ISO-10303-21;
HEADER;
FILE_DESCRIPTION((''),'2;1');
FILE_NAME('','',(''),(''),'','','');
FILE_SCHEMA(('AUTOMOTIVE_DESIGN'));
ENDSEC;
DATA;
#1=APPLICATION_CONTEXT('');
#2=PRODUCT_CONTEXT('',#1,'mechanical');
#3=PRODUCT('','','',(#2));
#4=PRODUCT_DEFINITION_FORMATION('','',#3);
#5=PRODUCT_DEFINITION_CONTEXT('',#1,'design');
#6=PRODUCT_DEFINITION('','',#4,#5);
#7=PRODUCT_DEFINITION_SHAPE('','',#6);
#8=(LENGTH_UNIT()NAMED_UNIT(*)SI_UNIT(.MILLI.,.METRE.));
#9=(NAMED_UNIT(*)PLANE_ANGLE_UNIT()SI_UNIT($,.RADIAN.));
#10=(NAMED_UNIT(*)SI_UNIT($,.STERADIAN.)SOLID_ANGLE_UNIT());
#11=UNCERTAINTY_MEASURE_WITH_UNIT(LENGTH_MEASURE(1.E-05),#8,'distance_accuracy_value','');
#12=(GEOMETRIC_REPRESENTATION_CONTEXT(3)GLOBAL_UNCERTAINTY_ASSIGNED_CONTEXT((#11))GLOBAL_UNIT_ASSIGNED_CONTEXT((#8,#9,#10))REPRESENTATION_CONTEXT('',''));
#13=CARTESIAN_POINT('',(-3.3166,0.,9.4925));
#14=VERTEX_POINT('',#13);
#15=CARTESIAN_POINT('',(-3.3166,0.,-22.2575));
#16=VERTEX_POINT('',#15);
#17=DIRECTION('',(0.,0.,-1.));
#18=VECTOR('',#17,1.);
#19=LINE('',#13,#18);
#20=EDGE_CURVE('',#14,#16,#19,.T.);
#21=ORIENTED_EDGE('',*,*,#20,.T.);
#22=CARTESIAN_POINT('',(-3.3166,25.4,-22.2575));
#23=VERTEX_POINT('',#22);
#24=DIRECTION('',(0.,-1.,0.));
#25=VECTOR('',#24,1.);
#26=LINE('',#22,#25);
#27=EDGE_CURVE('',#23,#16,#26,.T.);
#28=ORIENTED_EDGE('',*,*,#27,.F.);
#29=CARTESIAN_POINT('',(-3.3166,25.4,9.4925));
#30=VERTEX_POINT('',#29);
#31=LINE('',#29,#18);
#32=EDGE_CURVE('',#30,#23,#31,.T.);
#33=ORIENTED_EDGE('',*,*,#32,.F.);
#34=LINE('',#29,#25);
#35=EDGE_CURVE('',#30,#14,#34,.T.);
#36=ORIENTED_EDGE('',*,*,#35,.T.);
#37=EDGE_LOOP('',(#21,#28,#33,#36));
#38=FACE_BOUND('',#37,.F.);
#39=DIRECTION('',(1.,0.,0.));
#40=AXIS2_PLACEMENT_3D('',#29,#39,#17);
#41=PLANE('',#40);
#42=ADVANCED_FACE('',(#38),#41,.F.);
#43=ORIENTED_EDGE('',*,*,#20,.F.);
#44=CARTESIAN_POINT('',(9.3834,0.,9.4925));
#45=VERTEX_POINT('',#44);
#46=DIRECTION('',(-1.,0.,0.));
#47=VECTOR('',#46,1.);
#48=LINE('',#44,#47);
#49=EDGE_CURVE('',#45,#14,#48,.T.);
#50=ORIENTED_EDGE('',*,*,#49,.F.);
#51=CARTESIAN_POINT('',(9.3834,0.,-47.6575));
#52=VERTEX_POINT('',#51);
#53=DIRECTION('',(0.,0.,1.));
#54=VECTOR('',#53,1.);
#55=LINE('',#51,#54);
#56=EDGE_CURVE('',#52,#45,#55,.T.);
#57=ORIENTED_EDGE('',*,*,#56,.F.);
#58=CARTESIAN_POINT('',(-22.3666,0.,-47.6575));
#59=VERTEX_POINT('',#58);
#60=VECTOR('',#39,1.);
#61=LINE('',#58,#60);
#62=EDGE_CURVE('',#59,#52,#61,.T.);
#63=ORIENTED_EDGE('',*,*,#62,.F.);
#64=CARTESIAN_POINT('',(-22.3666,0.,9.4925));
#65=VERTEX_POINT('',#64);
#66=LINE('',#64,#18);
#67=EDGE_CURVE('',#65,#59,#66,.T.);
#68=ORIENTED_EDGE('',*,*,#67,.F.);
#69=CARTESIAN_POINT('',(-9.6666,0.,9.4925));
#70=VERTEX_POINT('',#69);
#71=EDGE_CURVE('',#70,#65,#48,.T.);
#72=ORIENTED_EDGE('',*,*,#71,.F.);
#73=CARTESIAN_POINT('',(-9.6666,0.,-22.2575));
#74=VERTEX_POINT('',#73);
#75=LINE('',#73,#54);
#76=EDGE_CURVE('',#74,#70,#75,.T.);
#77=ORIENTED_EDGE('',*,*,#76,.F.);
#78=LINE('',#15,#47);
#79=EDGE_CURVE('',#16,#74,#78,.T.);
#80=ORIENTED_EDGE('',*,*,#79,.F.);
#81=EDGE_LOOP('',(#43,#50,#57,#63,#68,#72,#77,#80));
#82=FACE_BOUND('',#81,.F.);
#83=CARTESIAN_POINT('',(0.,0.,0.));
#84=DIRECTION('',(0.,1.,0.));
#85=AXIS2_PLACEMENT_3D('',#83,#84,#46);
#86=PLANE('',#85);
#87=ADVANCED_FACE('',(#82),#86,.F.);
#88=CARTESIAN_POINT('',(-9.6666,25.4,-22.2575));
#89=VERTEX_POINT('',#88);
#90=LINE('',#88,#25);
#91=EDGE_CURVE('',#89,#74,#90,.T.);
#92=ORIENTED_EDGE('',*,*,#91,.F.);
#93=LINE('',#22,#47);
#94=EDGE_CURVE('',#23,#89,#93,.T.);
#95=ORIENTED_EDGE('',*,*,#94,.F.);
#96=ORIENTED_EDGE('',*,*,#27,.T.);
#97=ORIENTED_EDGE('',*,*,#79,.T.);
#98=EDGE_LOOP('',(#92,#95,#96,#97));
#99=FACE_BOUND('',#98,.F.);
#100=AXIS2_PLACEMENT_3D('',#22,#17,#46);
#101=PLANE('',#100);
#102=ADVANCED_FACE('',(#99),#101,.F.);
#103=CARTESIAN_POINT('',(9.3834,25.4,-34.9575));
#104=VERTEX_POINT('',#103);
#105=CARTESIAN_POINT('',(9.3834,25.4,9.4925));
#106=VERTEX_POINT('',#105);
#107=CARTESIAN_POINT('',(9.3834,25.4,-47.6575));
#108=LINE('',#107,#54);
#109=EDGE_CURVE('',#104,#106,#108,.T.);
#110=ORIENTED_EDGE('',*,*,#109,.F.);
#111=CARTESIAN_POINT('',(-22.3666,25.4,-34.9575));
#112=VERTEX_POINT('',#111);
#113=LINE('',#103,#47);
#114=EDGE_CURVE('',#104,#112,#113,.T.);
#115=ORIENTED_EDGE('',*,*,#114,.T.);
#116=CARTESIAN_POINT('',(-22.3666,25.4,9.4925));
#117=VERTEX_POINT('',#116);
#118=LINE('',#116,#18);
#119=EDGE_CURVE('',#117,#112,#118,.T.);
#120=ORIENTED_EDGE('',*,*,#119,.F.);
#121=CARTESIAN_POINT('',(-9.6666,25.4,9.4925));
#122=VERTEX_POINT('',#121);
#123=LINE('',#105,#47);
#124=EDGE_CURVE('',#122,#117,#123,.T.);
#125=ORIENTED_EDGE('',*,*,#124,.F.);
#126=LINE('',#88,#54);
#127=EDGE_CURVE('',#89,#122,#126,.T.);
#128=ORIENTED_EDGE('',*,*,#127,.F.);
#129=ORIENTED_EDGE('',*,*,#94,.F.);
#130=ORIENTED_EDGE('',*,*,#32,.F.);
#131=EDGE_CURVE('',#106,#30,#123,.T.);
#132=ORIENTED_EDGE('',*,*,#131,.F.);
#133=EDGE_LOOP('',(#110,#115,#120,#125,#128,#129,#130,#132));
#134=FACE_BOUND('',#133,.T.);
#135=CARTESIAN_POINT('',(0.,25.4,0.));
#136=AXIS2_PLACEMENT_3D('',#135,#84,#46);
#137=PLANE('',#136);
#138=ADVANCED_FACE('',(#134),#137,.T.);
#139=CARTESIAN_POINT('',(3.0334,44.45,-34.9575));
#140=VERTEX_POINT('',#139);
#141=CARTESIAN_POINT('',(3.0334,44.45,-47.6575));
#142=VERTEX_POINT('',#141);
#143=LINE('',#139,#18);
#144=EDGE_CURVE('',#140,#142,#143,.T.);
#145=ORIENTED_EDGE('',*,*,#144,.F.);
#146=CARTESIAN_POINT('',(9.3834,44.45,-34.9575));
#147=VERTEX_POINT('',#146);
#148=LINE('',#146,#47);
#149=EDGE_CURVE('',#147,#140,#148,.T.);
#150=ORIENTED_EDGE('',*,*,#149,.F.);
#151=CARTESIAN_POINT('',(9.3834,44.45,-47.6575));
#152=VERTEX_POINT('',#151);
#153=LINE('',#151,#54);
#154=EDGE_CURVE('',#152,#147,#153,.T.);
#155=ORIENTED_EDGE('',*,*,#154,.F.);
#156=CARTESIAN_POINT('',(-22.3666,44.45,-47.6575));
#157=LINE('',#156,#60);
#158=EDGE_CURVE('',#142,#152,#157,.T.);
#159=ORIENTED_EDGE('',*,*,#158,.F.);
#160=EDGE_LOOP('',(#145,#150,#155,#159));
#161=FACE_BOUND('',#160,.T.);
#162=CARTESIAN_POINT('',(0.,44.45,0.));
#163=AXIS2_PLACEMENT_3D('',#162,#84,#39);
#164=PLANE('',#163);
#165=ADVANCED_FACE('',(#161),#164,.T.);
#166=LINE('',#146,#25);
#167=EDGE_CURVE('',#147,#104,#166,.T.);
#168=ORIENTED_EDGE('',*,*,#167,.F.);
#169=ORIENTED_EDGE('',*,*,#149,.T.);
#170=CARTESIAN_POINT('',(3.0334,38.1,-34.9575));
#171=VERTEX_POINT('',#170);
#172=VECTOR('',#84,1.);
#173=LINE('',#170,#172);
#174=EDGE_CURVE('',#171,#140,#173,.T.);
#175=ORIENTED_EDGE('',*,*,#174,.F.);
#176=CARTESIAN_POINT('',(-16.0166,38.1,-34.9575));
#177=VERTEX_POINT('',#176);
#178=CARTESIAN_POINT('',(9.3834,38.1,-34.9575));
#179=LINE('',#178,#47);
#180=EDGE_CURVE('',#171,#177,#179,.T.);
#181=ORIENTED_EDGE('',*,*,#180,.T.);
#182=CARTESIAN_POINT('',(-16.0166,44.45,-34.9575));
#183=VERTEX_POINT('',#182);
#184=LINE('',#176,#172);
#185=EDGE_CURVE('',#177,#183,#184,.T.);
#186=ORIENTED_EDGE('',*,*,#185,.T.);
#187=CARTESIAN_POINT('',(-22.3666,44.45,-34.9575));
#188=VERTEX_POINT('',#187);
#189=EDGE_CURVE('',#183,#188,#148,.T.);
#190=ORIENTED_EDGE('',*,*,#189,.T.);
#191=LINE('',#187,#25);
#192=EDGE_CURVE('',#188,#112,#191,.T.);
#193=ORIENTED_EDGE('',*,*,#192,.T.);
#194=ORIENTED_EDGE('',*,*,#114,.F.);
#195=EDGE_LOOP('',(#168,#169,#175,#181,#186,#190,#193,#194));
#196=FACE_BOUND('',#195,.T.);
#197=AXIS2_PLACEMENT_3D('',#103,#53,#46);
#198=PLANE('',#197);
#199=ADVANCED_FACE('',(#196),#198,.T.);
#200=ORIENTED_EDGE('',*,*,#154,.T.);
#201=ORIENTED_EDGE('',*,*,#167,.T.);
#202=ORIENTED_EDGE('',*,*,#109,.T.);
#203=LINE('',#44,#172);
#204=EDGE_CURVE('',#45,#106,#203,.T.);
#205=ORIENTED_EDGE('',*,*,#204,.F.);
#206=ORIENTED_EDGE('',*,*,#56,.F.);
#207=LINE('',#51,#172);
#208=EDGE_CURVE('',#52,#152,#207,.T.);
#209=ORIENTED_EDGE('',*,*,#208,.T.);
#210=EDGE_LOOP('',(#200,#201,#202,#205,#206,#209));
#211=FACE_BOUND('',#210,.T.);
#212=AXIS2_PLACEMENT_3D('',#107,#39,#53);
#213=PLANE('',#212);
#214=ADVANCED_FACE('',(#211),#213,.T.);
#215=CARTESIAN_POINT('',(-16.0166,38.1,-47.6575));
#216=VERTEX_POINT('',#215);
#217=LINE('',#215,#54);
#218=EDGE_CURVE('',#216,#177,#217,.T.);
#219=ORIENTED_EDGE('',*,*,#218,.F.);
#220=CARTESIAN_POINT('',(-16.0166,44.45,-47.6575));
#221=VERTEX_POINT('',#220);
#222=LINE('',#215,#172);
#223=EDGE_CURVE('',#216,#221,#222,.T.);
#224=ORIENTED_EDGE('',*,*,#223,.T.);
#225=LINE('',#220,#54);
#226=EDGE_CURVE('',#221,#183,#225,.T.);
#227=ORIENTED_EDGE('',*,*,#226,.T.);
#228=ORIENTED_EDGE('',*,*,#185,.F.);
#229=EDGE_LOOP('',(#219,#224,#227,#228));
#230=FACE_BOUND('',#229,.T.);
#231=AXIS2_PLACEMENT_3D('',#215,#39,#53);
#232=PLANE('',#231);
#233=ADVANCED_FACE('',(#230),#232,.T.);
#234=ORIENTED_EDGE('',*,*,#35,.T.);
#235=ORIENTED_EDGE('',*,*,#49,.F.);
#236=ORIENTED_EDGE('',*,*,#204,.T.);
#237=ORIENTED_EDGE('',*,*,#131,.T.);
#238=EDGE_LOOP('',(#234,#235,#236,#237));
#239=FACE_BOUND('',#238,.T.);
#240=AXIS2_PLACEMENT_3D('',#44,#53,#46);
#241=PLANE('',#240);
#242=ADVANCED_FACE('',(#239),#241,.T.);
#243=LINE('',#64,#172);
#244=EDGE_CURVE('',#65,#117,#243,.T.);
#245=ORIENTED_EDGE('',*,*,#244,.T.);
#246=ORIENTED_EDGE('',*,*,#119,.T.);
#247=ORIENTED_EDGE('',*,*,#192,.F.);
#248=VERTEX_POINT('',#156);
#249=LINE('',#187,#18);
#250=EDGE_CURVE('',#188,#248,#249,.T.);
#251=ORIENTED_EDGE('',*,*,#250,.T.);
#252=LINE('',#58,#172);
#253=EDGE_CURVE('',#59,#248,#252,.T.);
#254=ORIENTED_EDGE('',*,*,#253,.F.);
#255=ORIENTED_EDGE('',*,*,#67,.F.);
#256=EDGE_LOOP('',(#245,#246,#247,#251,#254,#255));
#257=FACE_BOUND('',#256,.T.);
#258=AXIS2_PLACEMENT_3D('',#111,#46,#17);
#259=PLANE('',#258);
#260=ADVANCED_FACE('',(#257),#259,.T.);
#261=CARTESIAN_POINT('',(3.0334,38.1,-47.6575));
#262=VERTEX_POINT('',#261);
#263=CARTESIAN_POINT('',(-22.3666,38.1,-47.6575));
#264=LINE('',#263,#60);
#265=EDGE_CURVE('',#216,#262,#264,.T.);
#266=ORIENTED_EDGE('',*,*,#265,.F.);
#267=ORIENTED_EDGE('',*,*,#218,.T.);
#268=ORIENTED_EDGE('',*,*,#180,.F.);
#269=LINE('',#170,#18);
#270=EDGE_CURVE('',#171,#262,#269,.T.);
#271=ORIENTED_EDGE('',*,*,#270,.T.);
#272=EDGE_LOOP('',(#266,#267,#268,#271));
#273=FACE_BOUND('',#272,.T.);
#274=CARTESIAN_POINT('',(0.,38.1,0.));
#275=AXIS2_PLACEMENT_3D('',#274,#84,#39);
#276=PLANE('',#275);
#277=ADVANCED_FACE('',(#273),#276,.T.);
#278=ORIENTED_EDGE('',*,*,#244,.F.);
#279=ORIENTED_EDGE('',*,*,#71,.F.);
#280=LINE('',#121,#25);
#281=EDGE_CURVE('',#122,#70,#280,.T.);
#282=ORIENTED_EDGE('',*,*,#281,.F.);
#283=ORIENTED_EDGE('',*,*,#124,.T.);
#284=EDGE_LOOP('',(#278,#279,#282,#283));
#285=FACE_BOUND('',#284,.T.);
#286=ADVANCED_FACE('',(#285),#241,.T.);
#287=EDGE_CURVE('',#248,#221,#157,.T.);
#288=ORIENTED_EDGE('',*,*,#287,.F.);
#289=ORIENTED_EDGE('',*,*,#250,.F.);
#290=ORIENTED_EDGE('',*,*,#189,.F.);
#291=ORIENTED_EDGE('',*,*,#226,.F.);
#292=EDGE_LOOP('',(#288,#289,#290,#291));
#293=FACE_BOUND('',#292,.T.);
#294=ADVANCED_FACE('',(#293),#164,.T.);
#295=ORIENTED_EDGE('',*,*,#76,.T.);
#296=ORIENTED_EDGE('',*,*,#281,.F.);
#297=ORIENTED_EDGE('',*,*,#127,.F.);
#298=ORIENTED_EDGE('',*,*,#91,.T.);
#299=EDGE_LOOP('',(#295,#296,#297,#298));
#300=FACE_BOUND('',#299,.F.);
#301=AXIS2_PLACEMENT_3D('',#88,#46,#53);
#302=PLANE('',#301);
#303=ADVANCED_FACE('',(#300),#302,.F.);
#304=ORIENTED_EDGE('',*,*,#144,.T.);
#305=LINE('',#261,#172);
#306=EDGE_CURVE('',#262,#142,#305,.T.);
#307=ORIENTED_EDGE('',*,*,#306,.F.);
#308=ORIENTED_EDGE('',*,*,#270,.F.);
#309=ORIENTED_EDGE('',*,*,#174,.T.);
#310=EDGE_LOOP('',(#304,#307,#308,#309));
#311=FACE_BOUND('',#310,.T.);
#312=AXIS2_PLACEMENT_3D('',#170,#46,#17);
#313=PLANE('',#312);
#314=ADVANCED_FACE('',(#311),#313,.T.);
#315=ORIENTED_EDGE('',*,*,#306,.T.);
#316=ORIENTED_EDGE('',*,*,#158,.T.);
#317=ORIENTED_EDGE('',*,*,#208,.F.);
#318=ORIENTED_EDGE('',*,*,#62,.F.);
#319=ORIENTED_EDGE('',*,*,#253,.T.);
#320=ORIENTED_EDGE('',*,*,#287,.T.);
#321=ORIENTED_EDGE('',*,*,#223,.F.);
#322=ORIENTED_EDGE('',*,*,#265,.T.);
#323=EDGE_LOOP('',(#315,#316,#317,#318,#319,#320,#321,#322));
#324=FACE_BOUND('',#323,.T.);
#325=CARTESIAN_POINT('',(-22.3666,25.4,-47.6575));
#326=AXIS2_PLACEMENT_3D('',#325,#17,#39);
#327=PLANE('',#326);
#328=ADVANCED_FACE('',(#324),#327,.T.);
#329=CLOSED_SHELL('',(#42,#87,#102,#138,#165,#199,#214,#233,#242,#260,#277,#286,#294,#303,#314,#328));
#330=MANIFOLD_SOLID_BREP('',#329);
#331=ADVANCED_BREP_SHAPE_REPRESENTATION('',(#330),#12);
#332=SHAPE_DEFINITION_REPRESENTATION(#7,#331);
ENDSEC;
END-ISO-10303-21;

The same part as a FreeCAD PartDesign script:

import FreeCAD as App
import Part
import Sketcher

V = App.Vector
Q = App.Units.Quantity


def add_polygon(sketch, points):
    """Adds a closed chain of lines whose ends are joined by coincident constraints."""
    first, n = sketch.GeometryCount, len(points)
    for a, b in zip(points, points[1:] + points[:1]):
        sketch.addGeometry(Part.LineSegment(App.Vector(*a, 0), App.Vector(*b, 0)), False)
    for i in range(n):
        sketch.addConstraint(Sketcher.Constraint("Coincident", first + i, 2, first + (i + 1) % n, 1))

doc = App.newDocument("Part")
body = doc.addObject("PartDesign::Body", "Body")

# Sketch on XZ plane
sketch1 = body.newObject("Sketcher::SketchObject", "Sketch")
sketch1.AttachmentSupport = (doc.getObject("XZ_Plane"), [""])
sketch1.MapMode = "FlatFace"
add_polygon(sketch1, [(-22, 9), (9, 9), (9, -48), (-22, -48)])  # lines 0-3
sketch1.addConstraint([
    Sketcher.Constraint("Horizontal", 0),
    Sketcher.Constraint("Vertical", 1),
    Sketcher.Constraint("Horizontal", 2),
    Sketcher.Constraint("Vertical", 3),
    Sketcher.Constraint("DistanceX", 0, 1, 0, 2, Q("1.25 in")),
    Sketcher.Constraint("DistanceY", 1, 2, 1, 1, Q("2.25 in")),
    Sketcher.Constraint("DistanceX", -1, 1, 0, 2, Q("9.3834 mm")),
    Sketcher.Constraint("DistanceY", -1, 1, 0, 2, Q("9.4925 mm")),
])
pad1 = body.newObject("PartDesign::Pad", "Pad")
pad1.Profile = sketch1
pad1.Length = Q("1 in")
pad1.Reversed = True

# Sketch on XZ plane
sketch2 = body.newObject("Sketcher::SketchObject", "Sketch001")
sketch2.AttachmentSupport = (doc.getObject("XZ_Plane"), [""])
sketch2.MapMode = "FlatFace"
sketch2.AttachmentOffset = App.Placement(V(0, 0, -1 * 25.4), App.Rotation())
add_polygon(sketch2, [(-10, 9), (-3, 9), (-3, -22), (-10, -22)])  # lines 0-3
sketch2.addConstraint([
    Sketcher.Constraint("Horizontal", 0),
    Sketcher.Constraint("Vertical", 1),
    Sketcher.Constraint("Horizontal", 2),
    Sketcher.Constraint("Vertical", 3),
    Sketcher.Constraint("DistanceY", 1, 2, 1, 1, Q("1.25 in")),
    Sketcher.Constraint("DistanceX", 0, 1, 0, 2, Q("0.25 in")),
    Sketcher.Constraint("DistanceX", 0, 2, -1, 1, Q("3.3166 mm")),
    Sketcher.Constraint("DistanceY", -1, 1, 0, 2, Q("9.4925 mm")),
])
pocket1 = body.newObject("PartDesign::Pocket", "Pocket")
pocket1.Profile = sketch2
pocket1.Length = Q("1 in")
pocket1.Reversed = True

# Sketch on XZ plane
sketch3 = body.newObject("Sketcher::SketchObject", "Sketch002")
sketch3.AttachmentSupport = (doc.getObject("XZ_Plane"), [""])
sketch3.MapMode = "FlatFace"
sketch3.AttachmentOffset = App.Placement(V(0, 0, -1 * 25.4), App.Rotation())
add_polygon(sketch3, [(9, -35), (9, -48), (-22, -48), (-22, -35)])  # lines 0-3
sketch3.addConstraint([
    Sketcher.Constraint("Vertical", 0),
    Sketcher.Constraint("Horizontal", 1),
    Sketcher.Constraint("Vertical", 2),
    Sketcher.Constraint("Horizontal", 3),
    Sketcher.Constraint("DistanceY", 0, 2, 0, 1, Q("0.5 in")),
    Sketcher.Constraint("DistanceX", 1, 2, 1, 1, Q("1.25 in")),
    Sketcher.Constraint("DistanceX", -1, 1, 0, 2, Q("9.3834 mm")),
    Sketcher.Constraint("DistanceY", 0, 2, -1, 1, Q("47.6575 mm")),
])
pad2 = body.newObject("PartDesign::Pad", "Pad001")
pad2.Profile = sketch3
pad2.Length = Q("0.5 in")
pad2.Reversed = True

# Sketch on XZ plane
sketch4 = body.newObject("Sketcher::SketchObject", "Sketch003")
sketch4.AttachmentSupport = (doc.getObject("XZ_Plane"), [""])
sketch4.MapMode = "FlatFace"
sketch4.AttachmentOffset = App.Placement(V(0, 0, -1.5 * 25.4), App.Rotation())
add_polygon(sketch4, [(3, -35), (9, -35), (9, -48), (3, -48)])  # lines 0-3
add_polygon(sketch4, [(-22, -35), (-16, -35), (-16, -48), (-22, -48)])  # lines 4-7
sketch4.addConstraint([
    Sketcher.Constraint("Horizontal", 0),
    Sketcher.Constraint("Vertical", 1),
    Sketcher.Constraint("Horizontal", 2),
    Sketcher.Constraint("Vertical", 3),
    Sketcher.Constraint("Horizontal", 4),
    Sketcher.Constraint("Vertical", 5),
    Sketcher.Constraint("Horizontal", 6),
    Sketcher.Constraint("Vertical", 7),
    Sketcher.Constraint("Horizontal", 3, 2, 4, 2),
    Sketcher.Constraint("Horizontal", 2, 2, 5, 2),
    Sketcher.Constraint("Equal", 2, 4),
    Sketcher.Constraint("DistanceX", 0, 1, 0, 2, Q("0.25 in")),
    Sketcher.Constraint("DistanceY", 1, 2, 1, 1, Q("0.5 in")),
    Sketcher.Constraint("DistanceX", 4, 2, 0, 2, Q("1 in")),
    Sketcher.Constraint("DistanceX", -1, 1, 0, 2, Q("9.3834 mm")),
    Sketcher.Constraint("DistanceY", 0, 2, -1, 1, Q("34.9575 mm")),
])
pad3 = body.newObject("PartDesign::Pad", "Pad002")
pad3.Profile = sketch4
pad3.Length = Q("0.25 in")
pad3.Reversed = True

doc.recompute()
